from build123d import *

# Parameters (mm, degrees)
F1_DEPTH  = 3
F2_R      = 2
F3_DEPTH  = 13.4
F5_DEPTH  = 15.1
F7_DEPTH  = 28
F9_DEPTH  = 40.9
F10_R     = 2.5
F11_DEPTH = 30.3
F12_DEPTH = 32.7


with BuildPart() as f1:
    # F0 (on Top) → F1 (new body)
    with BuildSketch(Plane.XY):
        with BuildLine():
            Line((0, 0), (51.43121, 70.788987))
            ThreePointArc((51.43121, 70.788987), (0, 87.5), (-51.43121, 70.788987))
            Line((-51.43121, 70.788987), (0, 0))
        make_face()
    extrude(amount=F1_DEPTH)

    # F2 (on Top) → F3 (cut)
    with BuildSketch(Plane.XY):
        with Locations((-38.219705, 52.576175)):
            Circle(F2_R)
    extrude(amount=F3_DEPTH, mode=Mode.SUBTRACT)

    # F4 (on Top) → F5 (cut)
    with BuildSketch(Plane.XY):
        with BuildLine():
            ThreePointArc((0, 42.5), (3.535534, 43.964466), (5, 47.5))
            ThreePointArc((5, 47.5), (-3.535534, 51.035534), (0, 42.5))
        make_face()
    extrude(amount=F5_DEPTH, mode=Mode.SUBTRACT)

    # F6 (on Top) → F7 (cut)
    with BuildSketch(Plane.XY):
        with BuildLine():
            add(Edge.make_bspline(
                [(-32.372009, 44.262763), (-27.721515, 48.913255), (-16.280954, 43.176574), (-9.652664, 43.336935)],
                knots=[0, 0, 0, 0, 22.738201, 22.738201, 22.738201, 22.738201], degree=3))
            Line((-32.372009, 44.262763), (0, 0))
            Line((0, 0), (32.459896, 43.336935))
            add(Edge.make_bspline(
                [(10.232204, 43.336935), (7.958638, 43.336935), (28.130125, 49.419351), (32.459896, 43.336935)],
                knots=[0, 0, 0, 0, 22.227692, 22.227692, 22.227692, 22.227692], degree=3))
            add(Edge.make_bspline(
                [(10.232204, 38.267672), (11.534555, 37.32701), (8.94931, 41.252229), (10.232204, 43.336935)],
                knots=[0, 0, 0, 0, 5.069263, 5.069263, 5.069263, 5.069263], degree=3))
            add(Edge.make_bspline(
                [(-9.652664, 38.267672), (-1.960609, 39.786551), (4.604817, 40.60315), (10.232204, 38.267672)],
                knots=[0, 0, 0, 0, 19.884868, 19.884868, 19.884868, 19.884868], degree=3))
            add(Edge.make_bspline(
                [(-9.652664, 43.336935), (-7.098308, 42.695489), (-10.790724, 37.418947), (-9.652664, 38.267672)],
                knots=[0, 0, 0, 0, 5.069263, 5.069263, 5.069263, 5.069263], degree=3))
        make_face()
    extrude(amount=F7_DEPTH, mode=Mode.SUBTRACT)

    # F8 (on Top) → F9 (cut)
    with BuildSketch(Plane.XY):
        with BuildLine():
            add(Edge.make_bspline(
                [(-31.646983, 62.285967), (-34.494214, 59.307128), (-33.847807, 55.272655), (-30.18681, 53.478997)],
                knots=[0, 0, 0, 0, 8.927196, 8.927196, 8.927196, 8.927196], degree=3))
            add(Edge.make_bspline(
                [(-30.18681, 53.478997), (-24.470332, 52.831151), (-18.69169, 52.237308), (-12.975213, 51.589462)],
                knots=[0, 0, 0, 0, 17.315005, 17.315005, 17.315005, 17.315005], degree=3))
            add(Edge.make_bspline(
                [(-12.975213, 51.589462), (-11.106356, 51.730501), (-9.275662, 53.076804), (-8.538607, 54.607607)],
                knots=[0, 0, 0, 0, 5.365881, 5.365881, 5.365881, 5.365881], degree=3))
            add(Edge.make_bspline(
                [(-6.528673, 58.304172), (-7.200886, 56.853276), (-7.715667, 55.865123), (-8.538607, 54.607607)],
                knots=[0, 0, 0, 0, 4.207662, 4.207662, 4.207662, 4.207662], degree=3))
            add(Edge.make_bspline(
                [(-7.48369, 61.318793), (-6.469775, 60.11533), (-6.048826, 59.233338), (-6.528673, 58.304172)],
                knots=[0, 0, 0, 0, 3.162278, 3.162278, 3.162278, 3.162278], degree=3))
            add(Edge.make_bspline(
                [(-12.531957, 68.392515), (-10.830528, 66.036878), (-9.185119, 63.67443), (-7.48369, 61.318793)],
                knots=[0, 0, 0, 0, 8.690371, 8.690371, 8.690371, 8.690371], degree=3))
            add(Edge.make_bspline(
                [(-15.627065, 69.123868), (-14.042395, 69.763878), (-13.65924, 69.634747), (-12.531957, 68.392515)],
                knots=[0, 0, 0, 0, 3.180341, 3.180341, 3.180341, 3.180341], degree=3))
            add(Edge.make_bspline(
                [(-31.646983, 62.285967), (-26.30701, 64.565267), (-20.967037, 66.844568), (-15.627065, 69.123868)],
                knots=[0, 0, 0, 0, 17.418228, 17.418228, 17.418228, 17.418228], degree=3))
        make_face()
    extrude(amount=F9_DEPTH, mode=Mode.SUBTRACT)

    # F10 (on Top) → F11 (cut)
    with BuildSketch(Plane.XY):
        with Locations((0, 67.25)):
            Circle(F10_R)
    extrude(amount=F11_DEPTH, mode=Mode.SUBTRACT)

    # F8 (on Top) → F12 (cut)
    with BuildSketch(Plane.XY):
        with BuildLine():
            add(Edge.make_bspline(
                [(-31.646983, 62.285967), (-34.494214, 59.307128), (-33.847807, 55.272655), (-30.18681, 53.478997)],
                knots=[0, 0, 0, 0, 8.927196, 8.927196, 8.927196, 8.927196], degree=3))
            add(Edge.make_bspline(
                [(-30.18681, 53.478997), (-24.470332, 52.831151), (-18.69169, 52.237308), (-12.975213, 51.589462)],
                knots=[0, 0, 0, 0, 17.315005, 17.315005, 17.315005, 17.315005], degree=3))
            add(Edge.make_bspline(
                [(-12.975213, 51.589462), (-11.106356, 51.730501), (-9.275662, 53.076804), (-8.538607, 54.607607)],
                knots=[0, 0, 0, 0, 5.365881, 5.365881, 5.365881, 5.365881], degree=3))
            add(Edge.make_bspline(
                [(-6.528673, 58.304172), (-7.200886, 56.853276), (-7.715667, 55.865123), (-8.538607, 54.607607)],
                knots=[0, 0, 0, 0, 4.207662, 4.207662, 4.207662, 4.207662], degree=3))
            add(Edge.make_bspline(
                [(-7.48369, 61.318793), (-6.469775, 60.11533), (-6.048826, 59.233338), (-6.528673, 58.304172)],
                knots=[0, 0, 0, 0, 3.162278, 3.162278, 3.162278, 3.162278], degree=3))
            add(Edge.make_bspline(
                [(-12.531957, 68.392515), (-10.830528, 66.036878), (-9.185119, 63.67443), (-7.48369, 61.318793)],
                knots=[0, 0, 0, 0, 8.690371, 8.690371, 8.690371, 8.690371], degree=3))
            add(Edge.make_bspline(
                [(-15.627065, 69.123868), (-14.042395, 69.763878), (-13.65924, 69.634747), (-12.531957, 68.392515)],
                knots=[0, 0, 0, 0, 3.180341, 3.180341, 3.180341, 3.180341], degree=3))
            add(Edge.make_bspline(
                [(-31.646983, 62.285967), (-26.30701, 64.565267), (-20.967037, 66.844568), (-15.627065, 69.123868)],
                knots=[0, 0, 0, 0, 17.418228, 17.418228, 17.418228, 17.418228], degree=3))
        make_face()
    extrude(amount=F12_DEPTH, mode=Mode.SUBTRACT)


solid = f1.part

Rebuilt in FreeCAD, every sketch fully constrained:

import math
import FreeCAD as App
import Part
import Sketcher
from FreeCAD import Vector
Q = App.Units.Quantity

doc = App.newDocument("Part")
body = doc.addObject("PartDesign::Body", "Body")

# Sketch on XY plane
sketch1 = body.newObject("Sketcher::SketchObject", "Sketch")
sketch1.AttachmentSupport = (doc.getObject("XY_Plane"), [""])
sketch1.MapMode = "FlatFace"
sketch1.addGeometry([
    Part.LineSegment(Vector(0, 0, 0), Vector(51, 71, 0)),
    Part.ArcOfCircle(Part.Circle(Vector(0, 0, 0), Vector(0, 0, 1), 88), math.radians(54), math.radians(126)),
    Part.LineSegment(Vector(-51, 71, 0), Vector(0, 0, 0)),
], False)
sketch1.addConstraint([
    Sketcher.Constraint("Coincident", 0, 2, 1, 1),
    Sketcher.Constraint("Coincident", 1, 2, 2, 1),
    Sketcher.Constraint("Coincident", 2, 2, 0, 1),
    Sketcher.Constraint("Coincident", 1, 3, -1, 1),
    Sketcher.Constraint("Coincident", 2, 2, -1, 1),
    Sketcher.Constraint("Horizontal", 0, 2, 1, 2),
    Sketcher.Constraint("Radius", 1, Q("87.500001 mm")),
    Sketcher.Constraint("Angle", 0, Q("54 deg")),
])
pad1 = body.newObject("PartDesign::Pad", "Pad")
pad1.Profile = sketch1
pad1.Length = 3

# Sketch on XY plane
sketch2 = body.newObject("Sketcher::SketchObject", "Sketch001")
sketch2.AttachmentSupport = (doc.getObject("XY_Plane"), [""])
sketch2.MapMode = "FlatFace"
sketch2.addGeometry(Part.Circle(Vector(-38.2, 52.6, 0), Vector(0, 0, 1), 2), False)
sketch2.addConstraint([
    Sketcher.Constraint("Diameter", 0, Q("4 mm")),
    Sketcher.Constraint("DistanceX", 0, 3, -1, 1, Q("38.219705 mm")),
    Sketcher.Constraint("DistanceY", -1, 1, 0, 3, Q("52.576175 mm")),
])
pocket1 = body.newObject("PartDesign::Pocket", "Pocket")
pocket1.Profile = sketch2
pocket1.Length = 13.4
pocket1.Reversed = True

# Sketch on XY plane
sketch3 = body.newObject("Sketcher::SketchObject", "Sketch002")
sketch3.AttachmentSupport = (doc.getObject("XY_Plane"), [""])
sketch3.MapMode = "FlatFace"
sketch3.addGeometry([
    Part.ArcOfCircle(Part.Circle(Vector(0, 47.5, 0), Vector(0, 0, 1), 5), math.radians(-90), math.radians(0)),
    Part.ArcOfCircle(Part.Circle(Vector(0, 47.5, 0), Vector(0, 0, 1), 5), math.radians(0), math.radians(270)),
], False)
sketch3.addConstraint([
    Sketcher.Constraint("Tangent", 0, 1, 1, 2),
    Sketcher.Constraint("Coincident", 1, 1, 0, 2),
    Sketcher.Constraint("PointOnObject", 0, 3, -2),
    Sketcher.Constraint("PointOnObject", 0, 1, -2),
    Sketcher.Constraint("Horizontal", 0, 3, 1, 1),
    Sketcher.Constraint("Radius", 0, Q("5 mm")),
    Sketcher.Constraint("DistanceY", -1, 1, 0, 3, Q("47.5 mm")),
])
pocket2 = body.newObject("PartDesign::Pocket", "Pocket001")
pocket2.Profile = sketch3
pocket2.Length = 15.1
pocket2.Reversed = True

# Sketch on XY plane
sketch4 = body.newObject("Sketcher::SketchObject", "Sketch003")
sketch4.AttachmentSupport = (doc.getObject("XY_Plane"), [""])
sketch4.MapMode = "FlatFace"
sketch4.addGeometry([
    Part.BSplineCurve([Vector(-32.372009, 44.262763, 0), Vector(-27.721515, 48.913255, 0), Vector(-16.280954, 43.176574, 0), Vector(-9.652664, 43.336935, 0)], [4, 4], [0, 22.738201], False, 3, [1, 1, 1, 1], False),  # 0
    Part.LineSegment(Vector(-32.372009, 44.262763, 0), Vector(0, 0, 0)),  # 1
    Part.LineSegment(Vector(0, 0, 0), Vector(32.459896, 43.336935, 0)),  # 2
    Part.BSplineCurve([Vector(10.232204, 43.336935, 0), Vector(7.958638, 43.336935, 0), Vector(28.130125, 49.419351, 0), Vector(32.459896, 43.336935, 0)], [4, 4], [0, 22.227692], False, 3, [1, 1, 1, 1], False),  # 3
    Part.BSplineCurve([Vector(10.232204, 38.267672, 0), Vector(11.534555, 37.32701, 0), Vector(8.94931, 41.252229, 0), Vector(10.232204, 43.336935, 0)], [4, 4], [0, 5.069263], False, 3, [1, 1, 1, 1], False),  # 4
    Part.BSplineCurve([Vector(-9.652664, 38.267672, 0), Vector(-1.960609, 39.786551, 0), Vector(4.604817, 40.60315, 0), Vector(10.232204, 38.267672, 0)], [4, 4], [0, 19.884868], False, 3, [1, 1, 1, 1], False),  # 5
    Part.BSplineCurve([Vector(-9.652664, 43.336935, 0), Vector(-7.098308, 42.695489, 0), Vector(-10.790724, 37.418947, 0), Vector(-9.652664, 38.267672, 0)], [4, 4], [0, 5.069263], False, 3, [1, 1, 1, 1], False),  # 6
], False)
sketch4.addConstraint([
    Sketcher.Constraint("Block", 0),
    Sketcher.Constraint("Block", 3),
    Sketcher.Constraint("Block", 4),
    Sketcher.Constraint("Block", 5),
    Sketcher.Constraint("Block", 6),
    Sketcher.Constraint("Coincident", 0, 1, 1, 1),
    Sketcher.Constraint("Coincident", 1, 2, 2, 1),
    Sketcher.Constraint("Coincident", 2, 2, 3, 2),
    Sketcher.Constraint("Coincident", 1, 2, -1, 1),
])
pocket3 = body.newObject("PartDesign::Pocket", "Pocket002")
pocket3.Profile = sketch4
pocket3.Length = 28
pocket3.Reversed = True

# Sketch on XY plane
sketch5 = body.newObject("Sketcher::SketchObject", "Sketch004")
sketch5.AttachmentSupport = (doc.getObject("XY_Plane"), [""])
sketch5.MapMode = "FlatFace"
sketch5.addGeometry([
    Part.BSplineCurve([Vector(-31.646983, 62.285967, 0), Vector(-34.494214, 59.307128, 0), Vector(-33.847807, 55.272655, 0), Vector(-30.18681, 53.478997, 0)], [4, 4], [0, 8.927196], False, 3, [1, 1, 1, 1], False),  # 0
    Part.BSplineCurve([Vector(-30.18681, 53.478997, 0), Vector(-24.470332, 52.831151, 0), Vector(-18.69169, 52.237308, 0), Vector(-12.975213, 51.589462, 0)], [4, 4], [0, 17.315005], False, 3, [1, 1, 1, 1], False),  # 1
    Part.BSplineCurve([Vector(-12.975213, 51.589462, 0), Vector(-11.106356, 51.730501, 0), Vector(-9.275662, 53.076804, 0), Vector(-8.538607, 54.607607, 0)], [4, 4], [0, 5.365881], False, 3, [1, 1, 1, 1], False),  # 2
    Part.BSplineCurve([Vector(-6.528673, 58.304172, 0), Vector(-7.200886, 56.853276, 0), Vector(-7.715667, 55.865123, 0), Vector(-8.538607, 54.607607, 0)], [4, 4], [0, 4.207662], False, 3, [1, 1, 1, 1], False),  # 3
    Part.BSplineCurve([Vector(-7.48369, 61.318793, 0), Vector(-6.469775, 60.11533, 0), Vector(-6.048826, 59.233338, 0), Vector(-6.528673, 58.304172, 0)], [4, 4], [0, 3.162278], False, 3, [1, 1, 1, 1], False),  # 4
    Part.BSplineCurve([Vector(-12.531957, 68.392515, 0), Vector(-10.830528, 66.036878, 0), Vector(-9.185119, 63.67443, 0), Vector(-7.48369, 61.318793, 0)], [4, 4], [0, 8.690371], False, 3, [1, 1, 1, 1], False),  # 5
    Part.BSplineCurve([Vector(-15.627065, 69.123868, 0), Vector(-14.042395, 69.763878, 0), Vector(-13.65924, 69.634747, 0), Vector(-12.531957, 68.392515, 0)], [4, 4], [0, 3.180341], False, 3, [1, 1, 1, 1], False),  # 6
    Part.BSplineCurve([Vector(-31.646983, 62.285967, 0), Vector(-26.30701, 64.565267, 0), Vector(-20.967037, 66.844568, 0), Vector(-15.627065, 69.123868, 0)], [4, 4], [0, 17.418228], False, 3, [1, 1, 1, 1], False),  # 7
], False)
sketch5.addConstraint([
    Sketcher.Constraint("Block", 0),
    Sketcher.Constraint("Block", 1),
    Sketcher.Constraint("Block", 2),
    Sketcher.Constraint("Block", 3),
    Sketcher.Constraint("Block", 4),
    Sketcher.Constraint("Block", 5),
    Sketcher.Constraint("Block", 6),
    Sketcher.Constraint("Block", 7),
])
pocket4 = body.newObject("PartDesign::Pocket", "Pocket003")
pocket4.Profile = sketch5
pocket4.Length = 40.9
pocket4.Reversed = True

# Sketch on XY plane
sketch6 = body.newObject("Sketcher::SketchObject", "Sketch005")
sketch6.AttachmentSupport = (doc.getObject("XY_Plane"), [""])
sketch6.MapMode = "FlatFace"
sketch6.addGeometry(Part.Circle(Vector(0, 67.2, 0), Vector(0, 0, 1), 2.5), False)
sketch6.addConstraint([
    Sketcher.Constraint("PointOnObject", 0, 3, -2),
    Sketcher.Constraint("Diameter", 0, Q("5 mm")),
    Sketcher.Constraint("DistanceY", -1, 1, 0, 3, Q("67.25 mm")),
])
pocket5 = body.newObject("PartDesign::Pocket", "Pocket004")
pocket5.Profile = sketch6
pocket5.Length = 30.3
pocket5.Reversed = True

# Sketch on XY plane
sketch7 = body.newObject("Sketcher::SketchObject", "Sketch006")
sketch7.AttachmentSupport = (doc.getObject("XY_Plane"), [""])
sketch7.MapMode = "FlatFace"
sketch7.addGeometry([
    Part.BSplineCurve([Vector(-31.646983, 62.285967, 0), Vector(-34.494214, 59.307128, 0), Vector(-33.847807, 55.272655, 0), Vector(-30.18681, 53.478997, 0)], [4, 4], [0, 8.927196], False, 3, [1, 1, 1, 1], False),  # 0
    Part.BSplineCurve([Vector(-30.18681, 53.478997, 0), Vector(-24.470332, 52.831151, 0), Vector(-18.69169, 52.237308, 0), Vector(-12.975213, 51.589462, 0)], [4, 4], [0, 17.315005], False, 3, [1, 1, 1, 1], False),  # 1
    Part.BSplineCurve([Vector(-12.975213, 51.589462, 0), Vector(-11.106356, 51.730501, 0), Vector(-9.275662, 53.076804, 0), Vector(-8.538607, 54.607607, 0)], [4, 4], [0, 5.365881], False, 3, [1, 1, 1, 1], False),  # 2
    Part.BSplineCurve([Vector(-6.528673, 58.304172, 0), Vector(-7.200886, 56.853276, 0), Vector(-7.715667, 55.865123, 0), Vector(-8.538607, 54.607607, 0)], [4, 4], [0, 4.207662], False, 3, [1, 1, 1, 1], False),  # 3
    Part.BSplineCurve([Vector(-7.48369, 61.318793, 0), Vector(-6.469775, 60.11533, 0), Vector(-6.048826, 59.233338, 0), Vector(-6.528673, 58.304172, 0)], [4, 4], [0, 3.162278], False, 3, [1, 1, 1, 1], False),  # 4
    Part.BSplineCurve([Vector(-12.531957, 68.392515, 0), Vector(-10.830528, 66.036878, 0), Vector(-9.185119, 63.67443, 0), Vector(-7.48369, 61.318793, 0)], [4, 4], [0, 8.690371], False, 3, [1, 1, 1, 1], False),  # 5
    Part.BSplineCurve([Vector(-15.627065, 69.123868, 0), Vector(-14.042395, 69.763878, 0), Vector(-13.65924, 69.634747, 0), Vector(-12.531957, 68.392515, 0)], [4, 4], [0, 3.180341], False, 3, [1, 1, 1, 1], False),  # 6
    Part.BSplineCurve([Vector(-31.646983, 62.285967, 0), Vector(-26.30701, 64.565267, 0), Vector(-20.967037, 66.844568, 0), Vector(-15.627065, 69.123868, 0)], [4, 4], [0, 17.418228], False, 3, [1, 1, 1, 1], False),  # 7
], False)
sketch7.addConstraint([
    Sketcher.Constraint("Block", 0),
    Sketcher.Constraint("Block", 1),
    Sketcher.Constraint("Block", 2),
    Sketcher.Constraint("Block", 3),
    Sketcher.Constraint("Block", 4),
    Sketcher.Constraint("Block", 5),
    Sketcher.Constraint("Block", 6),
    Sketcher.Constraint("Block", 7),
])
pocket6 = body.newObject("PartDesign::Pocket", "Pocket005")
pocket6.Profile = sketch7
pocket6.Length = 32.7
pocket6.Reversed = True

doc.recompute()
